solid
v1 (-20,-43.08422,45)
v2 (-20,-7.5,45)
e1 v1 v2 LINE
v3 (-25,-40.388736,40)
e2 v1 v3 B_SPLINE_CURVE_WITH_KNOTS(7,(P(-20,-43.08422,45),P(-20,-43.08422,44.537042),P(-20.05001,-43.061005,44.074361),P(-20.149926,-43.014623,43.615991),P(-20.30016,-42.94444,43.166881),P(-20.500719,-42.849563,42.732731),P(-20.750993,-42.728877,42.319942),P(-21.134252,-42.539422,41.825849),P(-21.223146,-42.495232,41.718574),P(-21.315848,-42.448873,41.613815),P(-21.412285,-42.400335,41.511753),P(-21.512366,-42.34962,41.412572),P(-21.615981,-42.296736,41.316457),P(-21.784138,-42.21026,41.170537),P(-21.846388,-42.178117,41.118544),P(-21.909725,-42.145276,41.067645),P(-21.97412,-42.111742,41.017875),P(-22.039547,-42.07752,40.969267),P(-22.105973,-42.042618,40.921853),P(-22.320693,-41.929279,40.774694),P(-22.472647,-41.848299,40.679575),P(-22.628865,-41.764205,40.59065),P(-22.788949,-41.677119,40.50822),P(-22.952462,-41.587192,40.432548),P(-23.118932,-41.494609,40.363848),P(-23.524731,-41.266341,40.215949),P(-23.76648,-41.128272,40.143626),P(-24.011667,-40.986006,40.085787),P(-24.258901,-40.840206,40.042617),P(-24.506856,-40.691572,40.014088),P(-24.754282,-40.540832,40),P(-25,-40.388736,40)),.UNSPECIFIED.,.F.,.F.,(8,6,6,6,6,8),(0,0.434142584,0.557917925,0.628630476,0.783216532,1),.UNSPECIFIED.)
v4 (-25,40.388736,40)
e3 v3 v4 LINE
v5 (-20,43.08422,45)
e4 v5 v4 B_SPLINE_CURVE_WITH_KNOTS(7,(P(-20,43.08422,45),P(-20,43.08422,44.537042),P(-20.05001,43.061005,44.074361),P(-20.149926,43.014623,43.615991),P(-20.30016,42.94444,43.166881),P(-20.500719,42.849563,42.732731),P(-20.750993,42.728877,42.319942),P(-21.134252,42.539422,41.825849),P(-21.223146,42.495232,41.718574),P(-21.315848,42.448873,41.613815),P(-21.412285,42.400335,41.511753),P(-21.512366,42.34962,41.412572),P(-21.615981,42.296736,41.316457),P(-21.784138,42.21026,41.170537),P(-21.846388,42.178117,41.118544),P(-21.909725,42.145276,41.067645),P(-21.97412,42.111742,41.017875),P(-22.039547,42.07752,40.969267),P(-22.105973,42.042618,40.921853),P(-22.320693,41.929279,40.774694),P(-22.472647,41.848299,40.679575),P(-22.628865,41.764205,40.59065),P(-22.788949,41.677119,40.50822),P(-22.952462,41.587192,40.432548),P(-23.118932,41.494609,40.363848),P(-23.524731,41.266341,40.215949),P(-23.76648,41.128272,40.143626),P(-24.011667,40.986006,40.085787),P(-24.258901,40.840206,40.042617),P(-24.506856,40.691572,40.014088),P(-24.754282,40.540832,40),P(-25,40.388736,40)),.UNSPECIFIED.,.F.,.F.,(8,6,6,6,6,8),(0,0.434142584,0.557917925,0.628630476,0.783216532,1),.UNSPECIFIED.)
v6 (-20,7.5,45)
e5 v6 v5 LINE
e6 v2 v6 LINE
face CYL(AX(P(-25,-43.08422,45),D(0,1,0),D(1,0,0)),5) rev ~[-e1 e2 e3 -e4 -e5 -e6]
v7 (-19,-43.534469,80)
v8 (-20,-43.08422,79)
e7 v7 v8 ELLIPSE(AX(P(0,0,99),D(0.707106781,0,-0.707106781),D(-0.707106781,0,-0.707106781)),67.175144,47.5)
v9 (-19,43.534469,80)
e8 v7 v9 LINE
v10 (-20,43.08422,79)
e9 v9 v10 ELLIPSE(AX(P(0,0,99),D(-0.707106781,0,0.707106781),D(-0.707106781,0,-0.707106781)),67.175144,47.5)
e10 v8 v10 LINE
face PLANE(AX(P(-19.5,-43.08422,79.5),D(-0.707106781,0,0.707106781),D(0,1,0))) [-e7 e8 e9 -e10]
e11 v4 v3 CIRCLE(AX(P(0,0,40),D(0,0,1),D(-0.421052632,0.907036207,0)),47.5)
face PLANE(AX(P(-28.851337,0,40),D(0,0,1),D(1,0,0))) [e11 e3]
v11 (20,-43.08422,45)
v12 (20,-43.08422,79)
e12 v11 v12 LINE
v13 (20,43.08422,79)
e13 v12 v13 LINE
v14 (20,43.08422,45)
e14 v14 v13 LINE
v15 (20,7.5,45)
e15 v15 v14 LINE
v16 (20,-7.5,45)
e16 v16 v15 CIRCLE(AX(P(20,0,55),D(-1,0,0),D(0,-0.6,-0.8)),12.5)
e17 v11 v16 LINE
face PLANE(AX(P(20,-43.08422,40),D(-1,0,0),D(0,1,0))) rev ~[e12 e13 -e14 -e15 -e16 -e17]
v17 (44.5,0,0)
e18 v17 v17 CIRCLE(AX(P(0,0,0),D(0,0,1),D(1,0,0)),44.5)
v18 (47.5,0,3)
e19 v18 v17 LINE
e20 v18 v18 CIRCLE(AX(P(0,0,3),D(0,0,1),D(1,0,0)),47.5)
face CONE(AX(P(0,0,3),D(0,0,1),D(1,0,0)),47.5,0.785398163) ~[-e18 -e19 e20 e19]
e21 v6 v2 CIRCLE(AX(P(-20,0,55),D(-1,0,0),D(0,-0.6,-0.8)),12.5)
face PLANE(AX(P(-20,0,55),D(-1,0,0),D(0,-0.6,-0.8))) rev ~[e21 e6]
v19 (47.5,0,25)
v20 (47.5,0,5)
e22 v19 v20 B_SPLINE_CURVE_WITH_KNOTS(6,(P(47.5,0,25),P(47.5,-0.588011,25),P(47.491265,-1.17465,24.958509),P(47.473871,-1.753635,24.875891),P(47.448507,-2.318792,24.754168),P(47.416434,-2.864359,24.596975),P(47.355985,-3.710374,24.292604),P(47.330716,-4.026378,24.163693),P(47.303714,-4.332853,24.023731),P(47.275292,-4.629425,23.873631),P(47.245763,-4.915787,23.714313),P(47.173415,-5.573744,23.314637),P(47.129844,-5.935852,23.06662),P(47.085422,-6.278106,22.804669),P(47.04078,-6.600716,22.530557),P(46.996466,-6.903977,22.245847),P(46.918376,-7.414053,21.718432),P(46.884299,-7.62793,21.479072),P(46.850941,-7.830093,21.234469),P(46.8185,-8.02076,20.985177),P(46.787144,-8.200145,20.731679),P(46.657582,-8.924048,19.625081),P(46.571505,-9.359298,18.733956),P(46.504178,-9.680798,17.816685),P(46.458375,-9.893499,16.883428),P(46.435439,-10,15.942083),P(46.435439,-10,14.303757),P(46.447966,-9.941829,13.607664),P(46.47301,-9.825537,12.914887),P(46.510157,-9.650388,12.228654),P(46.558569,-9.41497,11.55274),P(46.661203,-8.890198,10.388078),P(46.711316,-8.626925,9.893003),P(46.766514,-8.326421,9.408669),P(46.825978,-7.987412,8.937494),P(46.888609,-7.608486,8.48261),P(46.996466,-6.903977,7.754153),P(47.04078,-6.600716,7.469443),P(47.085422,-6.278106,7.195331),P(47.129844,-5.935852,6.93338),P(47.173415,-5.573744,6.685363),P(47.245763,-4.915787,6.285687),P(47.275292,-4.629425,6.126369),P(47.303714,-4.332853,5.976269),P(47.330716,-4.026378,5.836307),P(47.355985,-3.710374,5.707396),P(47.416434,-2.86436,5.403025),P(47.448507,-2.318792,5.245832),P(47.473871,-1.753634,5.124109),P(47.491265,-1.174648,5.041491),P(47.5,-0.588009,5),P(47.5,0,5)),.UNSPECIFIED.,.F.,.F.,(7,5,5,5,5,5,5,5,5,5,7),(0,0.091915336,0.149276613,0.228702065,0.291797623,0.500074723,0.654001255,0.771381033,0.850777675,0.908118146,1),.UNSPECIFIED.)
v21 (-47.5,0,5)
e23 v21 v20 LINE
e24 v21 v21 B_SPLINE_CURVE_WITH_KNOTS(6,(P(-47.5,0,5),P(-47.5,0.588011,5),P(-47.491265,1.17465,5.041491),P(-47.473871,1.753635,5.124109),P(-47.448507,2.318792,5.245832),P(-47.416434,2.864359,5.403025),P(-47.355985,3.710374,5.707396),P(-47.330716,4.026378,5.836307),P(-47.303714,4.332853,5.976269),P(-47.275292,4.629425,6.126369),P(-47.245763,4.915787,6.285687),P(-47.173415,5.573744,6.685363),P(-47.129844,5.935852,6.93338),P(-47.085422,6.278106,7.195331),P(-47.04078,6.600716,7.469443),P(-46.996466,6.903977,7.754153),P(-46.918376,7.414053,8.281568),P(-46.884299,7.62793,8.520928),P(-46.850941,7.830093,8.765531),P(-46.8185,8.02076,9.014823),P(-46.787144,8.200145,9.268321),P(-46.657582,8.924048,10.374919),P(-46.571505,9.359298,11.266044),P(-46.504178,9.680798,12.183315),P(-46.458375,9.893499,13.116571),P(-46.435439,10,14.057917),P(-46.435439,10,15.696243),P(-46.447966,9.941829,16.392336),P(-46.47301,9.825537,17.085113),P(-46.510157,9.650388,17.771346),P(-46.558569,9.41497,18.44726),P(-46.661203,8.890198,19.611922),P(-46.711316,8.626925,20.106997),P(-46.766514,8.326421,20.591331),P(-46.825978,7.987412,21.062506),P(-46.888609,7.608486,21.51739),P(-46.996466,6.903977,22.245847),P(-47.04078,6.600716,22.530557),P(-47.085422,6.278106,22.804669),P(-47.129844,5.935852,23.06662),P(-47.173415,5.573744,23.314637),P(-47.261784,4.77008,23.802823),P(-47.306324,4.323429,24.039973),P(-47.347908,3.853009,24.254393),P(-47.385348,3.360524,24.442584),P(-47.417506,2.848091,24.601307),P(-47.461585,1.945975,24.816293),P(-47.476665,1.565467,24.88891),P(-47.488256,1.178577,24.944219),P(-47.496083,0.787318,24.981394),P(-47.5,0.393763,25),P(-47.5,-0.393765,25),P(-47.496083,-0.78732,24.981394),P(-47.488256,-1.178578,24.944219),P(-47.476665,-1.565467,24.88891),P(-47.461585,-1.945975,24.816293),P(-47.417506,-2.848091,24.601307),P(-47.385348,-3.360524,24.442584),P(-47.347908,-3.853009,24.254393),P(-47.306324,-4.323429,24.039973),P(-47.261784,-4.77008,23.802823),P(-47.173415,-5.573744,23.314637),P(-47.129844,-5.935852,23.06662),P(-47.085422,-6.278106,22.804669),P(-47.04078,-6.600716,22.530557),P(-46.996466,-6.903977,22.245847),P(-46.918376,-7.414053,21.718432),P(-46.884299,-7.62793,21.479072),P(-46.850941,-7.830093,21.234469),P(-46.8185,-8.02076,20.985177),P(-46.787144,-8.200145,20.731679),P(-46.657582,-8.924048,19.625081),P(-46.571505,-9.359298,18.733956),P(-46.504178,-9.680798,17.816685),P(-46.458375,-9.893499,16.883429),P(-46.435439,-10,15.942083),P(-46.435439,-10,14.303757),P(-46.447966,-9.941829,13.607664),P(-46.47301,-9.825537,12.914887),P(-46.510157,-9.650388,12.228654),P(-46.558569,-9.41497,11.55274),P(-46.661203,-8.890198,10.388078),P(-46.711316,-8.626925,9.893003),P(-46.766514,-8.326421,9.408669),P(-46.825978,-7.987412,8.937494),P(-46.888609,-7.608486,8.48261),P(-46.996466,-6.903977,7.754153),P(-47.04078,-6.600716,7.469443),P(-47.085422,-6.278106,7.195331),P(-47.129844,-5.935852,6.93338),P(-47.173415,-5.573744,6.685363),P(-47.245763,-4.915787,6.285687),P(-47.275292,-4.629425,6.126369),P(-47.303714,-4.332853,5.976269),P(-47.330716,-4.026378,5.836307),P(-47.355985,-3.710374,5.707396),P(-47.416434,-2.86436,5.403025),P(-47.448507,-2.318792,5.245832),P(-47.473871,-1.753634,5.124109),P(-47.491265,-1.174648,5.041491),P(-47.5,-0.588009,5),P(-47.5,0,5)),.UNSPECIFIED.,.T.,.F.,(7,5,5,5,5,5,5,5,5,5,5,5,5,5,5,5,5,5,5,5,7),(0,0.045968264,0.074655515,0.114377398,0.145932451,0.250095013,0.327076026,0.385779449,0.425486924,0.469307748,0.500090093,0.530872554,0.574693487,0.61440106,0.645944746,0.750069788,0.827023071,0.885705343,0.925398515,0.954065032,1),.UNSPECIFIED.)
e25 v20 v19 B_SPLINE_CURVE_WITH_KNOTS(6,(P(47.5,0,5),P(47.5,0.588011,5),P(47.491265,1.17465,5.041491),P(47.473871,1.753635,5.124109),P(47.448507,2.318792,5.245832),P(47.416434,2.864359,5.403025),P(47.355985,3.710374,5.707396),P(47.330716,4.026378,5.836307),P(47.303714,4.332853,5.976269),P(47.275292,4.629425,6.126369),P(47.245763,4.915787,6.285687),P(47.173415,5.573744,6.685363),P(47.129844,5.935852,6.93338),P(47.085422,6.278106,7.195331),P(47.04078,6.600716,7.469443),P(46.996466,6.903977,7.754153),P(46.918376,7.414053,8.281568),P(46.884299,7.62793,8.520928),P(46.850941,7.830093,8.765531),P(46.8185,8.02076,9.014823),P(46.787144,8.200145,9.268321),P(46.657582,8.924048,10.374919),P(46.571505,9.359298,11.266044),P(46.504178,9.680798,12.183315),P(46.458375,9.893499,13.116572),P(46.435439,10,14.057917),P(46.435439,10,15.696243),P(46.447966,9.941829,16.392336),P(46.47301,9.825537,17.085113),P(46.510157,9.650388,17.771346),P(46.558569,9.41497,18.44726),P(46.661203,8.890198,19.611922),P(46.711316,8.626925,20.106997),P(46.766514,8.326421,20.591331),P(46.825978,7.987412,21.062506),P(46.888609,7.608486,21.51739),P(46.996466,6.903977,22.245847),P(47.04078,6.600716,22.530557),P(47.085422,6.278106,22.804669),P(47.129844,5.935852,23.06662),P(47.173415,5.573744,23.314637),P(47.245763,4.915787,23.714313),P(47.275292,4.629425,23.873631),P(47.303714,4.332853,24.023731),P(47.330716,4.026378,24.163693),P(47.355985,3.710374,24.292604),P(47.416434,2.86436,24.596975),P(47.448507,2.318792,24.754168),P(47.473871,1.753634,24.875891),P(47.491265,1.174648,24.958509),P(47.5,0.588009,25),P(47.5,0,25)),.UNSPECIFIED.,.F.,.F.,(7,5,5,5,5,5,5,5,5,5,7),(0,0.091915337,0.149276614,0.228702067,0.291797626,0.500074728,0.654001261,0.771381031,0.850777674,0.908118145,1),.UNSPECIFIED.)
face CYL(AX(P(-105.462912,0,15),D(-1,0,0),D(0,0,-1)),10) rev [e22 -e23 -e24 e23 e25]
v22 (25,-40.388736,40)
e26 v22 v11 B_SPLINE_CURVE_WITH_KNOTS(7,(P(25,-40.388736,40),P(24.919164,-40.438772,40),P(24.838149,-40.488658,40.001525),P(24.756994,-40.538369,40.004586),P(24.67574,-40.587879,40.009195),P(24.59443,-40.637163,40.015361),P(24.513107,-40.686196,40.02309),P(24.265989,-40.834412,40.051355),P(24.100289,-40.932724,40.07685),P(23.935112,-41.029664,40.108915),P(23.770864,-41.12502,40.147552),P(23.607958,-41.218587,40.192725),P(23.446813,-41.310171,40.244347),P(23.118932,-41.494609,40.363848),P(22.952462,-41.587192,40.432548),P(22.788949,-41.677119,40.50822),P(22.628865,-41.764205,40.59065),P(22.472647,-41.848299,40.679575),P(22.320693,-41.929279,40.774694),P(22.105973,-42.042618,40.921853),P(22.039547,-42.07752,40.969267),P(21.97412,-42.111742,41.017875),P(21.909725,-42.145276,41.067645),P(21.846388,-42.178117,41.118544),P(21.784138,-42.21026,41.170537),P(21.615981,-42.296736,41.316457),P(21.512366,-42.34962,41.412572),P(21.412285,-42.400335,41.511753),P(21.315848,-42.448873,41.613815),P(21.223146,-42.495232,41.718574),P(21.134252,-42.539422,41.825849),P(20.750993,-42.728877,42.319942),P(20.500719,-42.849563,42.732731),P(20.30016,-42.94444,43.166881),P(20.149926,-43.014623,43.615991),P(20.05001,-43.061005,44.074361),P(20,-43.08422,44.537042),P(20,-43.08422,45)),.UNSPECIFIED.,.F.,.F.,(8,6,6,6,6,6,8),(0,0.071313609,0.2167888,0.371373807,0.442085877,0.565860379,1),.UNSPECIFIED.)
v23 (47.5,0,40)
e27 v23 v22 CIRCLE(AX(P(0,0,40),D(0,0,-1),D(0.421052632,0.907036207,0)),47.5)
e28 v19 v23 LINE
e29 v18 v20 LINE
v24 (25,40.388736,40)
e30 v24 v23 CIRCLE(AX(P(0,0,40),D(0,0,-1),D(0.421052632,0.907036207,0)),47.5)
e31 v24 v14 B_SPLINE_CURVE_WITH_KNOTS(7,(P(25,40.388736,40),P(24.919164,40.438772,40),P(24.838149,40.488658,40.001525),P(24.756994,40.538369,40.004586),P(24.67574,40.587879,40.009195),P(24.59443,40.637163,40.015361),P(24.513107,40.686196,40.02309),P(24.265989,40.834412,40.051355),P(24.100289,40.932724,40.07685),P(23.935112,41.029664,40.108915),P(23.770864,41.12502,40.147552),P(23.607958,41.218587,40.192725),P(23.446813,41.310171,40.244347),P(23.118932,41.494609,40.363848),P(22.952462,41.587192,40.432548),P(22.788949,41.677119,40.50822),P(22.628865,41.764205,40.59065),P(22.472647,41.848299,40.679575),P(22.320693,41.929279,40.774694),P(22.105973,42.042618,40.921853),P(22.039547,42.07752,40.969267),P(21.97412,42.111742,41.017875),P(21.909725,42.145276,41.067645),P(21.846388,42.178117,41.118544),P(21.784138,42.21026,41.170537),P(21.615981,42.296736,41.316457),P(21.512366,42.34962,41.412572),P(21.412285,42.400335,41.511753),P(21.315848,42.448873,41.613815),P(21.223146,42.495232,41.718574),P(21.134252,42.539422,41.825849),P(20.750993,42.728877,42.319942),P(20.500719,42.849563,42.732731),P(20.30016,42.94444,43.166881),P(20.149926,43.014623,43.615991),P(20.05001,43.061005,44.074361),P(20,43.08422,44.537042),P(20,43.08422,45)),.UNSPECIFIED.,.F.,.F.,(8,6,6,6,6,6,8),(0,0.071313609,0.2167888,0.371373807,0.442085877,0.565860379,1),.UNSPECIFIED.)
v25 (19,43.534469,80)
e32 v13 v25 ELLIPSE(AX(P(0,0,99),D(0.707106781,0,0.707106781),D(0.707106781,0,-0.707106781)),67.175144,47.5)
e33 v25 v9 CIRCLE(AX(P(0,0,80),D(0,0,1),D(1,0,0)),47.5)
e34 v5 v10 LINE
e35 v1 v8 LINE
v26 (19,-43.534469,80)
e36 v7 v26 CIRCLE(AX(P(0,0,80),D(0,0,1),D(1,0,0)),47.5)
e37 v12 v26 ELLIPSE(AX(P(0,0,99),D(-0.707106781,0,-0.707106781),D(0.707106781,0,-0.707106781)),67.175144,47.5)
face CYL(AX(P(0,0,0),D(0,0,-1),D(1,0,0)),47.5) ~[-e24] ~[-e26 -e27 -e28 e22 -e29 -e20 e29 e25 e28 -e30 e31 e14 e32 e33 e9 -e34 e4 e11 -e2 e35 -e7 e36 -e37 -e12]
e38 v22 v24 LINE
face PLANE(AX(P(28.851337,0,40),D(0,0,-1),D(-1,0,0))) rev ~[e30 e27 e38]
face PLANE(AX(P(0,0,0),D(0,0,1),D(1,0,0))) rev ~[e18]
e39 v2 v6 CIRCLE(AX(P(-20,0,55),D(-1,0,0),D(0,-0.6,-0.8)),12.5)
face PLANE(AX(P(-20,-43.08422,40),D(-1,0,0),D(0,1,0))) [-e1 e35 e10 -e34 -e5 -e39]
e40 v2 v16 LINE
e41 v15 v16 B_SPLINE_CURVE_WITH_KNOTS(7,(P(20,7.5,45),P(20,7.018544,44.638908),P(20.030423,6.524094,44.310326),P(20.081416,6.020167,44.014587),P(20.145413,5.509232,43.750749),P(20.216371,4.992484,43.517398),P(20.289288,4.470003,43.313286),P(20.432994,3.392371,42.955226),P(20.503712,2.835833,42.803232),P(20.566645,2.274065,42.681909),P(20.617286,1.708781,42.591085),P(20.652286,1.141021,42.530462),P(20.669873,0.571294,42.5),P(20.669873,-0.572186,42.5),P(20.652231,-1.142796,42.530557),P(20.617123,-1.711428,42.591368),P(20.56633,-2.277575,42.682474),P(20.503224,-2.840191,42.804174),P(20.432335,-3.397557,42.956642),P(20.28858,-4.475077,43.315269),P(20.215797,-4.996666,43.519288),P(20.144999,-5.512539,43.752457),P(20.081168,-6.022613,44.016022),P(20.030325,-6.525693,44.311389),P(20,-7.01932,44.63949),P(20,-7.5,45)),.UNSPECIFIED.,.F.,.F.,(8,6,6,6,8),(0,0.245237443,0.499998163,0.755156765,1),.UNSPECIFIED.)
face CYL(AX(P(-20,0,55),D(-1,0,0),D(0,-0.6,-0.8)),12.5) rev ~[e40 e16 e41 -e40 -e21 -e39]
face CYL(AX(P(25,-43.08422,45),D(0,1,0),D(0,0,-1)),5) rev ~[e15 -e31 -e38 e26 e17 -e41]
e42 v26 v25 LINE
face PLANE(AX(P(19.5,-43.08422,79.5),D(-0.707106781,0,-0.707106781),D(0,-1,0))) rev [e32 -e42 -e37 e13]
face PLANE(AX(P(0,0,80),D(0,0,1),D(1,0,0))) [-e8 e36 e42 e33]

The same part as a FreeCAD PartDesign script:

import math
import FreeCAD as App
import Part
import Sketcher


def edges_at(feature, points):
    """Names of the edges that pass closest to the given points."""
    edges = feature.Shape.Edges
    near = lambda p: min(range(len(edges)), key=lambda i: edges[i].distToShape(Part.Vertex(*p))[0])
    return sorted({f"Edge{near(p) + 1}" for p in points})

doc = App.newDocument("Part")
body = doc.addObject("PartDesign::Body", "Body")

sketch1 = doc.addObject("Sketcher::SketchObject", "Sketch")
body.addObject(sketch1)
sketch1.AttachmentSupport = (doc.XY_Plane, [""])
sketch1.MapMode = "FlatFace"
sketch1.addGeometry(Part.Circle(App.Vector(0, 0, 0), App.Vector(0, 0, 1), 48), False)
sketch1.addConstraint([
    Sketcher.Constraint("Coincident", 0, 3, -1, 1),
    Sketcher.Constraint("Diameter", 0, 95.0),
])
pad1 = doc.addObject("PartDesign::Pad", "Pad")
body.addObject(pad1)
pad1.Profile = sketch1
pad1.Length = 80

sketch2 = doc.addObject("Sketcher::SketchObject", "Sketch001")
body.addObject(sketch2)
sketch2.AttachmentSupport = (doc.XY_Plane, [""])
sketch2.MapMode = "FlatFace"
sketch2.AttachmentOffset = App.Placement(App.Vector(0, 0, 40), App.Rotation())
sketch2.addGeometry([
    Part.LineSegment(App.Vector(20, 43, 0), App.Vector(20, -43, 0)),
    Part.ArcOfCircle(Part.Circle(App.Vector(0, 0, 0), App.Vector(0, 0, 1), 48), math.radians(-65), math.radians(65)),
    Part.LineSegment(App.Vector(-20, -43, 0), App.Vector(-20, 43, 0)),
    Part.ArcOfCircle(Part.Circle(App.Vector(0, 0, 0), App.Vector(0, 0, 1), 48), math.radians(115), math.radians(245)),
], False)
sketch2.addConstraint([
    Sketcher.Constraint("Coincident", 0, 1, 1, 2),
    Sketcher.Constraint("Coincident", 1, 1, 0, 2),
    Sketcher.Constraint("Coincident", 2, 1, 3, 2),
    Sketcher.Constraint("Coincident", 3, 1, 2, 2),
    Sketcher.Constraint("Vertical", 0),
    Sketcher.Constraint("Vertical", 2),
    Sketcher.Constraint("Coincident", 1, 3, -1, 1),
    Sketcher.Constraint("Coincident", 3, 3, -1, 1),
    Sketcher.Constraint("Equal", 1, 3),
    Sketcher.Constraint("Horizontal", 1, 1, 2, 1),
    Sketcher.Constraint("Radius", 1, 47.5),
    Sketcher.Constraint("DistanceX", -1, 1, 0, 1, 20.0),
])
pocket1 = doc.addObject("PartDesign::Pocket", "Pocket")
body.addObject(pocket1)
pocket1.Profile = sketch2
pocket1.Length = 40
pocket1.Reversed = True
doc.recompute()

fillet = doc.addObject("PartDesign::Fillet", "Fillet")
body.addObject(fillet)
fillet.Base = (pocket1, edges_at(pocket1, [(-20, 0, 40), (20, 0, 40)]))
fillet.Radius = 5

sketch3 = doc.addObject("Sketcher::SketchObject", "Sketch002")
body.addObject(sketch3)
sketch3.AttachmentSupport = (doc.YZ_Plane, [""])
sketch3.MapMode = "FlatFace"
sketch3.AttachmentOffset = App.Placement(App.Vector(0, 0, -20), App.Rotation())
sketch3.addGeometry(Part.Circle(App.Vector(0, 55, 0), App.Vector(0, 0, 1), 12), False)
sketch3.addConstraint([
    Sketcher.Constraint("PointOnObject", 0, 3, -2),
    Sketcher.Constraint("Diameter", 0, 25.0),
    Sketcher.Constraint("DistanceY", -1, 1, 0, 3, 55.0),
])
pocket2 = doc.addObject("PartDesign::Pocket", "Pocket001")
body.addObject(pocket2)
pocket2.Profile = sketch3
pocket2.Type = "ThroughAll"
pocket2.Reversed = True
doc.recompute()

chamfer = doc.addObject("PartDesign::Chamfer", "Chamfer")
body.addObject(chamfer)
chamfer.Base = (pocket2, edges_at(pocket2, [(-20, 0, 80), (20, 0, 80)]))
chamfer.Size = 1
doc.recompute()

chamfer2 = doc.addObject("PartDesign::Chamfer", "Chamfer001")
body.addObject(chamfer2)
chamfer2.Base = (chamfer, edges_at(chamfer, [(-47.5, 0, 0)]))
chamfer2.Size = 3

sketch4 = doc.addObject("Sketcher::SketchObject", "Sketch003")
body.addObject(sketch4)
sketch4.AttachmentSupport = (doc.YZ_Plane, [""])
sketch4.MapMode = "FlatFace"
sketch4.addGeometry(Part.Circle(App.Vector(0, 15, 0), App.Vector(0, 0, 1), 10), False)
sketch4.addConstraint([
    Sketcher.Constraint("PointOnObject", 0, 3, -2),
    Sketcher.Constraint("Diameter", 0, 20.0),
    Sketcher.Constraint("DistanceY", -1, 1, 0, 3, 15.0),
])
pocket3 = doc.addObject("PartDesign::Pocket", "Pocket002")
body.addObject(pocket3)
pocket3.Profile = sketch4
pocket3.Type = "ThroughAll"
pocket3.Midplane = True

doc.recompute()
